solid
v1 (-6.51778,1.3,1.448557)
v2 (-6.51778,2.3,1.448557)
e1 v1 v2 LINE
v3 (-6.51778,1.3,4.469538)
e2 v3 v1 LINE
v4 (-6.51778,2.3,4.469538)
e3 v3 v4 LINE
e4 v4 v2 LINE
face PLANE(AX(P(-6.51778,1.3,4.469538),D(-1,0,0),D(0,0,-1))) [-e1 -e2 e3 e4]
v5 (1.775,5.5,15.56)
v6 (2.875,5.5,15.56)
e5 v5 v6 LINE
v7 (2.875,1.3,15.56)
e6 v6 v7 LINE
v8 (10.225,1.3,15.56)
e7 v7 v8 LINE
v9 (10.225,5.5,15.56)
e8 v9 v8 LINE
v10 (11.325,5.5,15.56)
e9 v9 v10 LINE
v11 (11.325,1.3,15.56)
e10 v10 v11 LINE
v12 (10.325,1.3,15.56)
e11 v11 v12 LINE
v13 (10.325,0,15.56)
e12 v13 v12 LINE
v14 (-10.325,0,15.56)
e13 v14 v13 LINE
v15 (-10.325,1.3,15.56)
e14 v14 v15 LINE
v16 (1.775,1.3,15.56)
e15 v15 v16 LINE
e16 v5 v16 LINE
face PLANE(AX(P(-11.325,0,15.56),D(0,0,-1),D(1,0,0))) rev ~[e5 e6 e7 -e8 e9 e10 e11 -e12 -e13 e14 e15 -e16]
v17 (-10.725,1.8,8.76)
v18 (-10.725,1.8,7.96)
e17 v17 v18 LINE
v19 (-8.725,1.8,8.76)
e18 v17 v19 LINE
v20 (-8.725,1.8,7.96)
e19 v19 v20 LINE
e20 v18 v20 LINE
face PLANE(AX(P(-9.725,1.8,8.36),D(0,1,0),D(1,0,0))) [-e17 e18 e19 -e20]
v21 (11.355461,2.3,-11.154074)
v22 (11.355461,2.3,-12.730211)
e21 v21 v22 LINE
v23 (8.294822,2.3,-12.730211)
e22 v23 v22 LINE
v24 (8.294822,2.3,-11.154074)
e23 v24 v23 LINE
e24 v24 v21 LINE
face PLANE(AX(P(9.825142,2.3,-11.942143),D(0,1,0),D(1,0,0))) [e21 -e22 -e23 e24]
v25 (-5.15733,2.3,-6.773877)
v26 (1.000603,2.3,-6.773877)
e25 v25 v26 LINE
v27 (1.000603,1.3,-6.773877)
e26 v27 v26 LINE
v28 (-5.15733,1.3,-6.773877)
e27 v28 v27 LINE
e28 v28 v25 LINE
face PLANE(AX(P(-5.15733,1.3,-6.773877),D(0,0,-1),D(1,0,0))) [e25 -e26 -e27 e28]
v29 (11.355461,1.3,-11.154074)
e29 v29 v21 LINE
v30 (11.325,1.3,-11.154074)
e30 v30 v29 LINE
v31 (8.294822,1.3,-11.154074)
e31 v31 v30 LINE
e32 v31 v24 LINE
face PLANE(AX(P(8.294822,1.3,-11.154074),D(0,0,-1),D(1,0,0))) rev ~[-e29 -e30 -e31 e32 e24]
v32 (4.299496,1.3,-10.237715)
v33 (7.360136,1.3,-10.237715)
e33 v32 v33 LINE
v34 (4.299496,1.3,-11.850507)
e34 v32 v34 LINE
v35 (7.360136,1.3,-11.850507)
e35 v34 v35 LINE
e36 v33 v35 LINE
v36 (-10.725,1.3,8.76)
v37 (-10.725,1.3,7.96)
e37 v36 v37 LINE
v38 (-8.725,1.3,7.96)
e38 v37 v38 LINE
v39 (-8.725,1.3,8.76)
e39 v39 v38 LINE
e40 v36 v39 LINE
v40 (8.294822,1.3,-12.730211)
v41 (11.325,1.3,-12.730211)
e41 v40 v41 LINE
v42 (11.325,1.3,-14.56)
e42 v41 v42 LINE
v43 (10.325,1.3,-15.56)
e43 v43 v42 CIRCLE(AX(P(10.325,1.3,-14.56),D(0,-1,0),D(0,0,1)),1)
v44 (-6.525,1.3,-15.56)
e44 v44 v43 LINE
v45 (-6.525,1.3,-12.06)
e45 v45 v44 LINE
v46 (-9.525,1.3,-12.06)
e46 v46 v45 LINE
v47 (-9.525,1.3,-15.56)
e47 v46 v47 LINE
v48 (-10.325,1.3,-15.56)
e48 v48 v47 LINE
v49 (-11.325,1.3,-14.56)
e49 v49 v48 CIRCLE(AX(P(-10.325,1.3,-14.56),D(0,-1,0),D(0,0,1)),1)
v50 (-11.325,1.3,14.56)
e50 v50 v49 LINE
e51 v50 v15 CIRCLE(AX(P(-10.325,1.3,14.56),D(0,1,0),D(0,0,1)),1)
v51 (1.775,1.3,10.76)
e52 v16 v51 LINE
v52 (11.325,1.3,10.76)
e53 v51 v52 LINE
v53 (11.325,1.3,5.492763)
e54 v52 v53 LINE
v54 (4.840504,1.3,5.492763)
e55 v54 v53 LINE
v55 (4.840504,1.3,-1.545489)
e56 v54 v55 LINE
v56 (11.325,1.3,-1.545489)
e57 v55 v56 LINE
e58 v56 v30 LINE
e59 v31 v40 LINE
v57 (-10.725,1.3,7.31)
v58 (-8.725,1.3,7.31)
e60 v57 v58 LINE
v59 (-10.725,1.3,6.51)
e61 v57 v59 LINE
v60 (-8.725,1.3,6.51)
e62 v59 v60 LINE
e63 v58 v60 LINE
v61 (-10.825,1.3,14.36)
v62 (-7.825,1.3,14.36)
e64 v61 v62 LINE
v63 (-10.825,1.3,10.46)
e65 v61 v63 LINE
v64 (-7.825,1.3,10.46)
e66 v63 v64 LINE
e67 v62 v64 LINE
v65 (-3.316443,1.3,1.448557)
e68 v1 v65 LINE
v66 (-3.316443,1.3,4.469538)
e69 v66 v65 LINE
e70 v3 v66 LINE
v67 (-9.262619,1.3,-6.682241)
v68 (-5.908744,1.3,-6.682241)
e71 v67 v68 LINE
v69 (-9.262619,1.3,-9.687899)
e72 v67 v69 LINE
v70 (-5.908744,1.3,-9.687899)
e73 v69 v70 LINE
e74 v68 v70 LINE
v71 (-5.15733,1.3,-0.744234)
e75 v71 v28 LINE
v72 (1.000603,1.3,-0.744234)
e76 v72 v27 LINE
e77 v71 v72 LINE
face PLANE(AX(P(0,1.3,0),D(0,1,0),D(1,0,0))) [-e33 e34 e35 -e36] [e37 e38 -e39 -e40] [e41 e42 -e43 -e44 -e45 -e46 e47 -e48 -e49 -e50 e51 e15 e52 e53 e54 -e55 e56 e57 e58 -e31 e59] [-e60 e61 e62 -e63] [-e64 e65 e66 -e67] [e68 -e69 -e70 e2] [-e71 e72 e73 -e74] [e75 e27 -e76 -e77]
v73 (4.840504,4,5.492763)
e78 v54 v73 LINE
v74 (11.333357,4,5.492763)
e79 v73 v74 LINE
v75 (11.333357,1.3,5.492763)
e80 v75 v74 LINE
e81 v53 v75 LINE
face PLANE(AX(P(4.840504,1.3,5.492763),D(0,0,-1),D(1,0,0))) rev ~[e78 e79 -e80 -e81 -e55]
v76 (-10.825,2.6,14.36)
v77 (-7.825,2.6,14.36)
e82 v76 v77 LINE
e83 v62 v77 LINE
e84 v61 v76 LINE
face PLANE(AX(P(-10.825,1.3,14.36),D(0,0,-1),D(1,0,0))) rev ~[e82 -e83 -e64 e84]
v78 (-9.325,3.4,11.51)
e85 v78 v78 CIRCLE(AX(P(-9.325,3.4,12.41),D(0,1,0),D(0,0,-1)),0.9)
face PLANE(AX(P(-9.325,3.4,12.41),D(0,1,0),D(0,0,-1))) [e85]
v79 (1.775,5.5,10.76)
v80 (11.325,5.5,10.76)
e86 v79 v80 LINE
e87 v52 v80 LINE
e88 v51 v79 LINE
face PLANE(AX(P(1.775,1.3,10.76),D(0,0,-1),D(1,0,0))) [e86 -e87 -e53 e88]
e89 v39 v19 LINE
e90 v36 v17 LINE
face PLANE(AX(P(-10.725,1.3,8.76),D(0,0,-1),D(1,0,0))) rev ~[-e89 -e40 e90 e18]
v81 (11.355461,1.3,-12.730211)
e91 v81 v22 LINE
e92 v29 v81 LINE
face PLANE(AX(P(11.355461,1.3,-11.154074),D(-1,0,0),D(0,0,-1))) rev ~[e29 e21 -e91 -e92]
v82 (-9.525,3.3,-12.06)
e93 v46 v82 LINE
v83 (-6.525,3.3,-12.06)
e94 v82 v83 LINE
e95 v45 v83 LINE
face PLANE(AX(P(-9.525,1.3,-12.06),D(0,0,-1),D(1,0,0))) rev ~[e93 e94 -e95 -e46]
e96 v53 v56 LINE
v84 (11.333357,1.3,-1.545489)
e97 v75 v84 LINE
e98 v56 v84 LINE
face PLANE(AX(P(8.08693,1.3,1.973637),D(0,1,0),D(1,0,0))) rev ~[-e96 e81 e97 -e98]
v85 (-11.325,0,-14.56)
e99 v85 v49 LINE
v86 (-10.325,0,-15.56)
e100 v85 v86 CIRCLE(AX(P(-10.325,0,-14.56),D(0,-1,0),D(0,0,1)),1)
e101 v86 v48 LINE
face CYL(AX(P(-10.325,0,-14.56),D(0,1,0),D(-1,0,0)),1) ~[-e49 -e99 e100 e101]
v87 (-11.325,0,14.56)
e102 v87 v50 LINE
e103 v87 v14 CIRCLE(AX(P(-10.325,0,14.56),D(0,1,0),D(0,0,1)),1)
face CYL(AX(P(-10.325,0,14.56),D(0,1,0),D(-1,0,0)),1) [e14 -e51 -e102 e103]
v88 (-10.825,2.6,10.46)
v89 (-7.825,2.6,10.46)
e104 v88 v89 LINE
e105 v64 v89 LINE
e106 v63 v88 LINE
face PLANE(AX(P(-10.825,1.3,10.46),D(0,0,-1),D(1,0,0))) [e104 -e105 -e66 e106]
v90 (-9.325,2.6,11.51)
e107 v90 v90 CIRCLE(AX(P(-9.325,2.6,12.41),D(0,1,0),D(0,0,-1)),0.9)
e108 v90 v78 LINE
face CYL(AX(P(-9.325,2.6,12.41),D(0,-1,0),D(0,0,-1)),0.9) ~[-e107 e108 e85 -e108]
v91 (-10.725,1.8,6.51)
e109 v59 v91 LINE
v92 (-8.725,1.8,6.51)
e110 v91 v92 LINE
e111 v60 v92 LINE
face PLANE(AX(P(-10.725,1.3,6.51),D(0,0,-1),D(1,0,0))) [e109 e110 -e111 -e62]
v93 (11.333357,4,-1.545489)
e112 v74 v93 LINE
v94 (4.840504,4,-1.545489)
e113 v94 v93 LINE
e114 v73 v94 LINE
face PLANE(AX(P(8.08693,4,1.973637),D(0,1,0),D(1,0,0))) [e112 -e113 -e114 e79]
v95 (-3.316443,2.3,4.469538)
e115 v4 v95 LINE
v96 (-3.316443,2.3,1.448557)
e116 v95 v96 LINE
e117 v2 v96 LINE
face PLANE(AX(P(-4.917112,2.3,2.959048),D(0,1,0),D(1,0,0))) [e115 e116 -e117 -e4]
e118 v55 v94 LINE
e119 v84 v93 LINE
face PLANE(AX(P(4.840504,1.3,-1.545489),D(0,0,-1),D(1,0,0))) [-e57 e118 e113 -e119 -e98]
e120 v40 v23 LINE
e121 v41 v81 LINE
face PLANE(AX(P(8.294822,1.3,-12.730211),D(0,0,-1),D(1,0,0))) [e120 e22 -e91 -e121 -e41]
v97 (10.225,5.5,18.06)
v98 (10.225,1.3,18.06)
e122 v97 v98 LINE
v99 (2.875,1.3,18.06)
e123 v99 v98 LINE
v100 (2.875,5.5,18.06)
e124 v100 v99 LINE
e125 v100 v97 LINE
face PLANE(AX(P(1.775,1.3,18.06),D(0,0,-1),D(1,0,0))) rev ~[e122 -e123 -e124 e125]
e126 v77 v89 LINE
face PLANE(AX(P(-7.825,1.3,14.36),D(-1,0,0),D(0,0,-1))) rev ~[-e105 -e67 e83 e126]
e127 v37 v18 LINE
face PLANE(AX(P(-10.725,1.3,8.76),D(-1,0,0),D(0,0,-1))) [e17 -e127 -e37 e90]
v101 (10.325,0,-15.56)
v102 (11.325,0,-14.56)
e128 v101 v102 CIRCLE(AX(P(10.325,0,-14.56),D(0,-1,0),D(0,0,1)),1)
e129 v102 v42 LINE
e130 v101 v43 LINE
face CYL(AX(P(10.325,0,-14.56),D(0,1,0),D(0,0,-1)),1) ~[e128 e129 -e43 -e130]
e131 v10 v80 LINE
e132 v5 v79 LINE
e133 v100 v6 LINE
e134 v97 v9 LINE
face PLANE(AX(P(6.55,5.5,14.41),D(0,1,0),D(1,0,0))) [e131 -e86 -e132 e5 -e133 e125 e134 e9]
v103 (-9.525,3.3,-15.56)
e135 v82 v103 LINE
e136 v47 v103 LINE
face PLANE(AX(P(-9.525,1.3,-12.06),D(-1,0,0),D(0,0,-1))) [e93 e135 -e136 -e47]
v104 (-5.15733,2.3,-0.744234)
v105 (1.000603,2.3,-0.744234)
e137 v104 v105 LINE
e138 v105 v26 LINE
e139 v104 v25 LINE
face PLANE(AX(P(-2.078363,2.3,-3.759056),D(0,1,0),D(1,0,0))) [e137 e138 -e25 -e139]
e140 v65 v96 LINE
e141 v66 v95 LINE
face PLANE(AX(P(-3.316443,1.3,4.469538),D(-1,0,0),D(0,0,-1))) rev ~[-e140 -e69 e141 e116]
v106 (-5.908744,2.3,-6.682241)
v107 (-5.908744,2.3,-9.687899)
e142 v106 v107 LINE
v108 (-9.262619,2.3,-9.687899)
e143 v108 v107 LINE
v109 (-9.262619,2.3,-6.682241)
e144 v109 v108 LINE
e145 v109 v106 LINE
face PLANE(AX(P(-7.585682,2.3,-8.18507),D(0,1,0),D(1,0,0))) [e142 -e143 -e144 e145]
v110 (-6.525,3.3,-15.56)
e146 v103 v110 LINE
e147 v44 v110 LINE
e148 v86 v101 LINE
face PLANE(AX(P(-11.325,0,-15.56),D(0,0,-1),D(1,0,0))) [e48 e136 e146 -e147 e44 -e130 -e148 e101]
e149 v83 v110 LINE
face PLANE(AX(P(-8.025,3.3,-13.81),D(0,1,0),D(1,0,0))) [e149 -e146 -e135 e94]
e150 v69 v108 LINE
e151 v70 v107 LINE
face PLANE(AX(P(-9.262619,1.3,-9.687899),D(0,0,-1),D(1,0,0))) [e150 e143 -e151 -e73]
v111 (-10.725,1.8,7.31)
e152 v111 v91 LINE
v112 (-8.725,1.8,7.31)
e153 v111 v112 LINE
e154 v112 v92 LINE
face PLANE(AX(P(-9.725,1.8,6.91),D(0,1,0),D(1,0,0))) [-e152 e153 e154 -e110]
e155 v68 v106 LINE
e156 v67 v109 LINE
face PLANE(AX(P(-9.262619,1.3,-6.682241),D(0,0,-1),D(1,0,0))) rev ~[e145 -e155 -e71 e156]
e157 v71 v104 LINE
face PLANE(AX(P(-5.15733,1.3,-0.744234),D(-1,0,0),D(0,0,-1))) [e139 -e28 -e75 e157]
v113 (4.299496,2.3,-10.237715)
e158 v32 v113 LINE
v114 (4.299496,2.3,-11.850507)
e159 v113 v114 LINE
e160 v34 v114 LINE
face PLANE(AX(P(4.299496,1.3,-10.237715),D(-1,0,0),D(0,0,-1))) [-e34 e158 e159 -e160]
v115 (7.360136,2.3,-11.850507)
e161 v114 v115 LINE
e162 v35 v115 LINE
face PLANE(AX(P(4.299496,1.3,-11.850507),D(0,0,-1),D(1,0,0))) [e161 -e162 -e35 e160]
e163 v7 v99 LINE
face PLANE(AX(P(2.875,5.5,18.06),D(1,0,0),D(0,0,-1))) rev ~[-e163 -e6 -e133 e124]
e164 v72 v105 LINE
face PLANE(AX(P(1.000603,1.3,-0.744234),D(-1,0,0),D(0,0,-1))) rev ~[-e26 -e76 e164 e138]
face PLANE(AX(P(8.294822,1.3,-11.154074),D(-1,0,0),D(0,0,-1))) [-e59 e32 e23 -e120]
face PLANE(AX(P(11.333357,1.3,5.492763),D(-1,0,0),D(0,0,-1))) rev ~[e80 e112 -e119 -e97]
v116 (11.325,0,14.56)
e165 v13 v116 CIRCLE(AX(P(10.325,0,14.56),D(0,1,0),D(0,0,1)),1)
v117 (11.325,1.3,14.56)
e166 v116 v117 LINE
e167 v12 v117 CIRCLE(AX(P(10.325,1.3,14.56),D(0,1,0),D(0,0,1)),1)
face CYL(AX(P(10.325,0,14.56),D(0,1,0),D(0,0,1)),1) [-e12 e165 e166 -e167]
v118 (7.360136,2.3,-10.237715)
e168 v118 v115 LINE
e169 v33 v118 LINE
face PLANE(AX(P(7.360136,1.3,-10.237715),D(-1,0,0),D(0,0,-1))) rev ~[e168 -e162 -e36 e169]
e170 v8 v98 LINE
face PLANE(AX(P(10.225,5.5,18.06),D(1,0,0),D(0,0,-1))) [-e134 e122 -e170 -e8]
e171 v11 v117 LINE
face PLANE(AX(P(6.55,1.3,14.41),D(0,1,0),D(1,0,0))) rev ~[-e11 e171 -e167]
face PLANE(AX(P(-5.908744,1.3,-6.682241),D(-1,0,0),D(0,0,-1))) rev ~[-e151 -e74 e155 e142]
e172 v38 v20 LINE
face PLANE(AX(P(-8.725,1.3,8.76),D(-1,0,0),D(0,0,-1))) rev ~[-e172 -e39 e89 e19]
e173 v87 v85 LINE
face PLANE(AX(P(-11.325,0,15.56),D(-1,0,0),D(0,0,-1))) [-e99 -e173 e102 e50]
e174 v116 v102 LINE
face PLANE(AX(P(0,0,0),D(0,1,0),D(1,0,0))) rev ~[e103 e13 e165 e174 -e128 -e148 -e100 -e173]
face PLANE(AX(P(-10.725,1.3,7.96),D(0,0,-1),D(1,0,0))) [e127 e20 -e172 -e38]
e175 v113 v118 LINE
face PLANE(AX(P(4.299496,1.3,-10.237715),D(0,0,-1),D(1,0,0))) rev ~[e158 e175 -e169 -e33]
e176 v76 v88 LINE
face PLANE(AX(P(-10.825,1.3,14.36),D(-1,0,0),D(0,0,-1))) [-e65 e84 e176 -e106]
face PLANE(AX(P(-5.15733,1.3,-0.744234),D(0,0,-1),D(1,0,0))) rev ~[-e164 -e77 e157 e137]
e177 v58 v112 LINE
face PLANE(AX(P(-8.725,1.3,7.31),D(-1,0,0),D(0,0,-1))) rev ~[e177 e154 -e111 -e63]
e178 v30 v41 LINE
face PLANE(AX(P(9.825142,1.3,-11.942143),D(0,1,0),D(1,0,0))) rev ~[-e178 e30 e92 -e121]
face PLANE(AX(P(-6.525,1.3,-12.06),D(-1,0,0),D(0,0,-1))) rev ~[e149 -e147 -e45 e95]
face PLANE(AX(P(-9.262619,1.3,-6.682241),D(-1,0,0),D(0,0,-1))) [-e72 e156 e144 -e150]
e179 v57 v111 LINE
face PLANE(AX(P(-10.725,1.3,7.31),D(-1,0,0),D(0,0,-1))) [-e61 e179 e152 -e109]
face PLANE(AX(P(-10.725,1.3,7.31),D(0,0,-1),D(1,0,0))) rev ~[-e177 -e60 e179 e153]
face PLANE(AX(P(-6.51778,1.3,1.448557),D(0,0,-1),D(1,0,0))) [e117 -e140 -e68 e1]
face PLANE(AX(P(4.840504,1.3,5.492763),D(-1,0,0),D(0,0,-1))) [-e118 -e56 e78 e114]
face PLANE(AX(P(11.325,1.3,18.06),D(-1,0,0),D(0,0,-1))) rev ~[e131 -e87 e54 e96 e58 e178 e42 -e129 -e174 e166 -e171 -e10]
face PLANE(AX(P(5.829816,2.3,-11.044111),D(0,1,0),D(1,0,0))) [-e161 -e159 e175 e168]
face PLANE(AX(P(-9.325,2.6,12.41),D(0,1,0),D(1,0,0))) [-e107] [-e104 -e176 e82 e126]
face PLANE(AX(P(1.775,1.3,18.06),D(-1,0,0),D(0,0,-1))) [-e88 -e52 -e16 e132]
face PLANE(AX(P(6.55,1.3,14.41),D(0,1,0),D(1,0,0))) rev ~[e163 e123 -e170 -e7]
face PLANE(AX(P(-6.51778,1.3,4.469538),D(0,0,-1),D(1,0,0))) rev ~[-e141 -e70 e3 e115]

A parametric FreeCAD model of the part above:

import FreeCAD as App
import Part
import Sketcher


def edges_at(feature, points):
    """Names of the edges that pass closest to the given points."""
    edges = feature.Shape.Edges
    near = lambda p: min(range(len(edges)), key=lambda i: edges[i].distToShape(Part.Vertex(*p))[0])
    return sorted({f"Edge{near(p) + 1}" for p in points})

doc = App.newDocument("Part")
body = doc.addObject("PartDesign::Body", "Body")

sketch1 = doc.addObject("Sketcher::SketchObject", "Sketch")
body.addObject(sketch1)
sketch1.AttachmentSupport = (doc.XZ_Plane, [""])
sketch1.MapMode = "FlatFace"
sketch1.addGeometry(Part.LineSegment(App.Vector(-11, -16, 0), App.Vector(-11, 16, 0)), False)
sketch1.addGeometry(Part.LineSegment(App.Vector(-11, 16, 0), App.Vector(11, 16, 0)), False)
sketch1.addGeometry(Part.LineSegment(App.Vector(11, 16, 0), App.Vector(11, -16, 0)), False)
sketch1.addGeometry(Part.LineSegment(App.Vector(11, -16, 0), App.Vector(-11, -16, 0)), False)
sketch1.addConstraint(Sketcher.Constraint("Coincident", 0, 2, 1, 1))
sketch1.addConstraint(Sketcher.Constraint("Coincident", 1, 2, 2, 1))
sketch1.addConstraint(Sketcher.Constraint("Coincident", 2, 2, 3, 1))
sketch1.addConstraint(Sketcher.Constraint("Coincident", 3, 2, 0, 1))
sketch1.addConstraint(Sketcher.Constraint("Vertical", 0))
sketch1.addConstraint(Sketcher.Constraint("Horizontal", 1))
sketch1.addConstraint(Sketcher.Constraint("Vertical", 2))
sketch1.addConstraint(Sketcher.Constraint("Horizontal", 3))
sketch1.addConstraint(Sketcher.Constraint("Symmetric", 0, 2, 2, 2, -1, 1))
sketch1.addConstraint(Sketcher.Constraint("DistanceX", 1, 1, 1, 2, 22.65))
sketch1.addConstraint(Sketcher.Constraint("DistanceY", 0, 1, 0, 2, 31.12))
pad1 = doc.addObject("PartDesign::Pad", "Pad")
body.addObject(pad1)
pad1.Profile = sketch1
pad1.Length = 1.3
pad1.Reversed = True

sketch2 = doc.addObject("Sketcher::SketchObject", "Sketch001")
body.addObject(sketch2)
sketch2.AttachmentSupport = (doc.XZ_Plane, [""])
sketch2.MapMode = "FlatFace"
sketch2.AttachmentOffset = App.Placement(App.Vector(0, 0, -1.3), App.Rotation())
sketch2.addGeometry(Part.LineSegment(App.Vector(2, 11, 0), App.Vector(2, 18, 0)), False)
sketch2.addGeometry(Part.LineSegment(App.Vector(2, 18, 0), App.Vector(11, 18, 0)), False)
sketch2.addGeometry(Part.LineSegment(App.Vector(11, 18, 0), App.Vector(11, 11, 0)), False)
sketch2.addGeometry(Part.LineSegment(App.Vector(11, 11, 0), App.Vector(2, 11, 0)), False)
sketch2.addConstraint(Sketcher.Constraint("Coincident", 0, 2, 1, 1))
sketch2.addConstraint(Sketcher.Constraint("Coincident", 1, 2, 2, 1))
sketch2.addConstraint(Sketcher.Constraint("Coincident", 2, 2, 3, 1))
sketch2.addConstraint(Sketcher.Constraint("Coincident", 3, 2, 0, 1))
sketch2.addConstraint(Sketcher.Constraint("Vertical", 0))
sketch2.addConstraint(Sketcher.Constraint("Horizontal", 1))
sketch2.addConstraint(Sketcher.Constraint("Vertical", 2))
sketch2.addConstraint(Sketcher.Constraint("Horizontal", 3))
sketch2.addConstraint(Sketcher.Constraint("DistanceY", 0, 1, 0, 2, 7.3))
sketch2.addConstraint(Sketcher.Constraint("DistanceX", 1, 1, 1, 2, 9.55))
sketch2.addConstraint(Sketcher.Constraint("DistanceY", -1, 1, 0, 2, 18.06))
sketch2.addConstraint(Sketcher.Constraint("DistanceX", -1, 1, 0, 2, 1.775))
pad2 = doc.addObject("PartDesign::Pad", "Pad001")
body.addObject(pad2)
pad2.Profile = sketch2
pad2.Length = 4.2
pad2.Reversed = True

sketch3 = doc.addObject("Sketcher::SketchObject", "Sketch002")
body.addObject(sketch3)
sketch3.AttachmentSupport = (doc.XZ_Plane, [""])
sketch3.MapMode = "FlatFace"
sketch3.AttachmentOffset = App.Placement(App.Vector(0, 0, -1.3), App.Rotation())
sketch3.addGeometry(Part.LineSegment(App.Vector(-9.5, -15.6, 0), App.Vector(-9.5, -12.1, 0)), False)
sketch3.addGeometry(Part.LineSegment(App.Vector(-9.5, -12.1, 0), App.Vector(-6.5, -12.1, 0)), False)
sketch3.addGeometry(Part.LineSegment(App.Vector(-6.5, -12.1, 0), App.Vector(-6.5, -15.6, 0)), False)
sketch3.addGeometry(Part.LineSegment(App.Vector(-6.5, -15.6, 0), App.Vector(-9.5, -15.6, 0)), False)
sketch3.addConstraint(Sketcher.Constraint("Coincident", 0, 2, 1, 1))
sketch3.addConstraint(Sketcher.Constraint("Coincident", 1, 2, 2, 1))
sketch3.addConstraint(Sketcher.Constraint("Coincident", 2, 2, 3, 1))
sketch3.addConstraint(Sketcher.Constraint("Coincident", 3, 2, 0, 1))
sketch3.addConstraint(Sketcher.Constraint("Vertical", 0))
sketch3.addConstraint(Sketcher.Constraint("Horizontal", 1))
sketch3.addConstraint(Sketcher.Constraint("Vertical", 2))
sketch3.addConstraint(Sketcher.Constraint("Horizontal", 3))
sketch3.addConstraint(Sketcher.Constraint("DistanceX", 1, 1, 1, 2, 3.0))
sketch3.addConstraint(Sketcher.Constraint("DistanceY", 0, 1, 0, 2, 3.5))
sketch3.addConstraint(Sketcher.Constraint("DistanceY", 0, 2, -1, 1, 12.06))
sketch3.addConstraint(Sketcher.Constraint("DistanceX", 0, 2, -1, 1, 9.525))
pad3 = doc.addObject("PartDesign::Pad", "Pad002")
body.addObject(pad3)
pad3.Profile = sketch3
pad3.Length = 2
pad3.Reversed = True

sketch4 = doc.addObject("Sketcher::SketchObject", "Sketch003")
body.addObject(sketch4)
sketch4.AttachmentSupport = (doc.XZ_Plane, [""])
sketch4.MapMode = "FlatFace"
sketch4.AttachmentOffset = App.Placement(App.Vector(0, 0, -1.3), App.Rotation())
sketch4.addGeometry(Part.LineSegment(App.Vector(-10.8, 10.5, 0), App.Vector(-10.8, 14.4, 0)), False)
sketch4.addGeometry(Part.LineSegment(App.Vector(-10.8, 14.4, 0), App.Vector(-7.8, 14.4, 0)), False)
sketch4.addGeometry(Part.LineSegment(App.Vector(-7.8, 14.4, 0), App.Vector(-7.8, 10.5, 0)), False)
sketch4.addGeometry(Part.LineSegment(App.Vector(-7.8, 10.5, 0), App.Vector(-10.8, 10.5, 0)), False)
sketch4.addConstraint(Sketcher.Constraint("Coincident", 0, 2, 1, 1))
sketch4.addConstraint(Sketcher.Constraint("Coincident", 1, 2, 2, 1))
sketch4.addConstraint(Sketcher.Constraint("Coincident", 2, 2, 3, 1))
sketch4.addConstraint(Sketcher.Constraint("Coincident", 3, 2, 0, 1))
sketch4.addConstraint(Sketcher.Constraint("Vertical", 0))
sketch4.addConstraint(Sketcher.Constraint("Horizontal", 1))
sketch4.addConstraint(Sketcher.Constraint("Vertical", 2))
sketch4.addConstraint(Sketcher.Constraint("Horizontal", 3))
sketch4.addConstraint(Sketcher.Constraint("DistanceX", 1, 1, 1, 2, 3.0))
sketch4.addConstraint(Sketcher.Constraint("DistanceY", 0, 1, 0, 2, 3.9))
sketch4.addConstraint(Sketcher.Constraint("DistanceY", -1, 1, 0, 2, 14.36))
sketch4.addConstraint(Sketcher.Constraint("DistanceX", 0, 2, -1, 1, 10.825))
pad4 = doc.addObject("PartDesign::Pad", "Pad003")
body.addObject(pad4)
pad4.Profile = sketch4
pad4.Length = 1.3
pad4.Reversed = True

sketch5 = doc.addObject("Sketcher::SketchObject", "Sketch004")
body.addObject(sketch5)
sketch5.AttachmentSupport = (doc.XZ_Plane, [""])
sketch5.MapMode = "FlatFace"
sketch5.AttachmentOffset = App.Placement(App.Vector(0, 0, -2.6), App.Rotation())
sketch5.addGeometry(Part.Circle(App.Vector(-9.3, 12.4, 0), App.Vector(0, 0, 1), 0.9), False)
sketch5.addConstraint(Sketcher.Constraint("Diameter", 0, 1.8))
sketch5.addConstraint(Sketcher.Constraint("DistanceY", -1, 1, 0, 3, 12.41))
sketch5.addConstraint(Sketcher.Constraint("DistanceX", 0, 3, -1, 1, 9.325))
pad5 = doc.addObject("PartDesign::Pad", "Pad004")
body.addObject(pad5)
pad5.Profile = sketch5
pad5.Length = 0.8
pad5.Reversed = True

sketch6 = doc.addObject("Sketcher::SketchObject", "Sketch005")
body.addObject(sketch6)
sketch6.AttachmentSupport = (doc.XZ_Plane, [""])
sketch6.MapMode = "FlatFace"
sketch6.AttachmentOffset = App.Placement(App.Vector(0, 0, -1.3), App.Rotation())
sketch6.addGeometry(Part.LineSegment(App.Vector(-5.2, -6.8, 0), App.Vector(-5.2, -0.7, 0)), False)
sketch6.addGeometry(Part.LineSegment(App.Vector(-5.2, -0.7, 0), App.Vector(1, -0.7, 0)), False)
sketch6.addGeometry(Part.LineSegment(App.Vector(1, -0.7, 0), App.Vector(1, -6.8, 0)), False)
sketch6.addGeometry(Part.LineSegment(App.Vector(1, -6.8, 0), App.Vector(-5.2, -6.8, 0)), False)
sketch6.addGeometry(Part.LineSegment(App.Vector(-9.3, -9.7, 0), App.Vector(-9.3, -6.7, 0)), False)
sketch6.addGeometry(Part.LineSegment(App.Vector(-9.3, -6.7, 0), App.Vector(-5.9, -6.7, 0)), False)
sketch6.addGeometry(Part.LineSegment(App.Vector(-5.9, -6.7, 0), App.Vector(-5.9, -9.7, 0)), False)
sketch6.addGeometry(Part.LineSegment(App.Vector(-5.9, -9.7, 0), App.Vector(-9.3, -9.7, 0)), False)
sketch6.addGeometry(Part.LineSegment(App.Vector(8.3, -12.7, 0), App.Vector(8.3, -11.2, 0)), False)
sketch6.addGeometry(Part.LineSegment(App.Vector(8.3, -11.2, 0), App.Vector(11.4, -11.2, 0)), False)
sketch6.addGeometry(Part.LineSegment(App.Vector(11.4, -11.2, 0), App.Vector(11.4, -12.7, 0)), False)
sketch6.addGeometry(Part.LineSegment(App.Vector(11.4, -12.7, 0), App.Vector(8.3, -12.7, 0)), False)
sketch6.addGeometry(Part.LineSegment(App.Vector(4.3, -11.9, 0), App.Vector(4.3, -10.2, 0)), False)
sketch6.addGeometry(Part.LineSegment(App.Vector(4.3, -10.2, 0), App.Vector(7.4, -10.2, 0)), False)
sketch6.addGeometry(Part.LineSegment(App.Vector(7.4, -10.2, 0), App.Vector(7.4, -11.9, 0)), False)
sketch6.addGeometry(Part.LineSegment(App.Vector(7.4, -11.9, 0), App.Vector(4.3, -11.9, 0)), False)
sketch6.addGeometry(Part.LineSegment(App.Vector(-6.5, 1.4, 0), App.Vector(-6.5, 4.5, 0)), False)
sketch6.addGeometry(Part.LineSegment(App.Vector(-6.5, 4.5, 0), App.Vector(-3.3, 4.5, 0)), False)
sketch6.addGeometry(Part.LineSegment(App.Vector(-3.3, 4.5, 0), App.Vector(-3.3, 1.4, 0)), False)
sketch6.addGeometry(Part.LineSegment(App.Vector(-3.3, 1.4, 0), App.Vector(-6.5, 1.4, 0)), False)
sketch6.addConstraint(Sketcher.Constraint("Coincident", 0, 2, 1, 1))
sketch6.addConstraint(Sketcher.Constraint("Coincident", 1, 2, 2, 1))
sketch6.addConstraint(Sketcher.Constraint("Coincident", 2, 2, 3, 1))
sketch6.addConstraint(Sketcher.Constraint("Coincident", 3, 2, 0, 1))
sketch6.addConstraint(Sketcher.Constraint("Coincident", 4, 2, 5, 1))
sketch6.addConstraint(Sketcher.Constraint("Coincident", 5, 2, 6, 1))
sketch6.addConstraint(Sketcher.Constraint("Coincident", 6, 2, 7, 1))
sketch6.addConstraint(Sketcher.Constraint("Coincident", 7, 2, 4, 1))
sketch6.addConstraint(Sketcher.Constraint("Coincident", 8, 2, 9, 1))
sketch6.addConstraint(Sketcher.Constraint("Coincident", 9, 2, 10, 1))
sketch6.addConstraint(Sketcher.Constraint("Coincident", 10, 2, 11, 1))
sketch6.addConstraint(Sketcher.Constraint("Coincident", 11, 2, 8, 1))
sketch6.addConstraint(Sketcher.Constraint("Coincident", 12, 2, 13, 1))
sketch6.addConstraint(Sketcher.Constraint("Coincident", 13, 2, 14, 1))
sketch6.addConstraint(Sketcher.Constraint("Coincident", 14, 2, 15, 1))
sketch6.addConstraint(Sketcher.Constraint("Coincident", 15, 2, 12, 1))
sketch6.addConstraint(Sketcher.Constraint("Coincident", 16, 2, 17, 1))
sketch6.addConstraint(Sketcher.Constraint("Coincident", 17, 2, 18, 1))
sketch6.addConstraint(Sketcher.Constraint("Coincident", 18, 2, 19, 1))
sketch6.addConstraint(Sketcher.Constraint("Coincident", 19, 2, 16, 1))
sketch6.addConstraint(Sketcher.Constraint("Vertical", 0))
sketch6.addConstraint(Sketcher.Constraint("Horizontal", 1))
sketch6.addConstraint(Sketcher.Constraint("Vertical", 2))
sketch6.addConstraint(Sketcher.Constraint("Horizontal", 3))
sketch6.addConstraint(Sketcher.Constraint("Vertical", 4))
sketch6.addConstraint(Sketcher.Constraint("Horizontal", 5))
sketch6.addConstraint(Sketcher.Constraint("Vertical", 6))
sketch6.addConstraint(Sketcher.Constraint("Horizontal", 7))
sketch6.addConstraint(Sketcher.Constraint("Vertical", 8))
sketch6.addConstraint(Sketcher.Constraint("Horizontal", 9))
sketch6.addConstraint(Sketcher.Constraint("Vertical", 10))
sketch6.addConstraint(Sketcher.Constraint("Horizontal", 11))
sketch6.addConstraint(Sketcher.Constraint("Vertical", 12))
sketch6.addConstraint(Sketcher.Constraint("Horizontal", 13))
sketch6.addConstraint(Sketcher.Constraint("Vertical", 14))
sketch6.addConstraint(Sketcher.Constraint("Horizontal", 15))
sketch6.addConstraint(Sketcher.Constraint("Vertical", 16))
sketch6.addConstraint(Sketcher.Constraint("Horizontal", 17))
sketch6.addConstraint(Sketcher.Constraint("Vertical", 18))
sketch6.addConstraint(Sketcher.Constraint("Horizontal", 19))
sketch6.addConstraint(Sketcher.Constraint("Equal", 11, 13))
sketch6.addConstraint(Sketcher.Constraint("DistanceX", 9, 1, 9, 2, 3.060639))
sketch6.addConstraint(Sketcher.Constraint("DistanceY", 16, 1, 16, 2, 3.02098))
sketch6.addConstraint(Sketcher.Constraint("DistanceY", 6, 2, -1, 1, 9.687899))
sketch6.addConstraint(Sketcher.Constraint("DistanceX", 5, 2, 17, 2, 2.592301))
sketch6.addConstraint(Sketcher.Constraint("DistanceX", 1, 1, 1, 2, 6.157933))
sketch6.addConstraint(Sketcher.Constraint("DistanceX", 5, 1, 5, 2, 3.353874))
sketch6.addConstraint(Sketcher.Constraint("DistanceX", 17, 1, 17, 2, 3.201337))
sketch6.addConstraint(Sketcher.Constraint("DistanceY", 0, 1, 0, 2, 6.029643))
sketch6.addConstraint(Sketcher.Constraint("DistanceY", 4, 1, 4, 2, 3.005658))
sketch6.addConstraint(Sketcher.Constraint("DistanceY", 8, 1, 8, 2, 1.576138))
sketch6.addConstraint(Sketcher.Constraint("DistanceY", 12, 1, 12, 2, 1.612792))
sketch6.addConstraint(Sketcher.Constraint("DistanceX", 0, 2, -1, 1, 5.15733))
sketch6.addConstraint(Sketcher.Constraint("DistanceX", 4, 2, -1, 1, 9.262619))
sketch6.addConstraint(Sketcher.Constraint("DistanceX", -1, 1, 8, 2, 8.294822))
sketch6.addConstraint(Sketcher.Constraint("DistanceY", 10, 2, -1, 1, 12.730211))
sketch6.addConstraint(Sketcher.Constraint("DistanceY", 6, 2, 3, 2, 2.914022))
sketch6.addConstraint(Sketcher.Constraint("DistanceY", 8, 2, 12, 2, 0.916359))
sketch6.addConstraint(Sketcher.Constraint("DistanceY", 0, 2, 16, 2, 5.213772))
sketch6.addConstraint(Sketcher.Constraint("DistanceX", -1, 1, 12, 2, 4.299496))
pad6 = doc.addObject("PartDesign::Pad", "Pad005")
body.addObject(pad6)
pad6.Profile = sketch6
pad6.Length = 1
pad6.Reversed = True

sketch7 = doc.addObject("Sketcher::SketchObject", "Sketch006")
body.addObject(sketch7)
sketch7.AttachmentSupport = (doc.XZ_Plane, [""])
sketch7.MapMode = "FlatFace"
sketch7.AttachmentOffset = App.Placement(App.Vector(0, 0, -1.3), App.Rotation())
sketch7.addGeometry(Part.LineSegment(App.Vector(5, -2, 0), App.Vector(5, 5, 0)), False)
sketch7.addGeometry(Part.LineSegment(App.Vector(5, 5, 0), App.Vector(11, 5, 0)), False)
sketch7.addGeometry(Part.LineSegment(App.Vector(11, 5, 0), App.Vector(11, -2, 0)), False)
sketch7.addGeometry(Part.LineSegment(App.Vector(11, -2, 0), App.Vector(5, -2, 0)), False)
sketch7.addConstraint(Sketcher.Constraint("Coincident", 0, 2, 1, 1))
sketch7.addConstraint(Sketcher.Constraint("Coincident", 1, 2, 2, 1))
sketch7.addConstraint(Sketcher.Constraint("Coincident", 2, 2, 3, 1))
sketch7.addConstraint(Sketcher.Constraint("Coincident", 3, 2, 0, 1))
sketch7.addConstraint(Sketcher.Constraint("Vertical", 0))
sketch7.addConstraint(Sketcher.Constraint("Horizontal", 1))
sketch7.addConstraint(Sketcher.Constraint("Vertical", 2))
sketch7.addConstraint(Sketcher.Constraint("Horizontal", 3))
sketch7.addConstraint(Sketcher.Constraint("DistanceX", 1, 1, 1, 2, 6.492853))
sketch7.addConstraint(Sketcher.Constraint("DistanceY", 0, 1, 0, 2, 7.038252))
sketch7.addConstraint(Sketcher.Constraint("DistanceY", 2, 2, -1, 1, 1.545489))
sketch7.addConstraint(Sketcher.Constraint("DistanceX", -1, 1, 0, 2, 4.840504))
pad7 = doc.addObject("PartDesign::Pad", "Pad006")
body.addObject(pad7)
pad7.Profile = sketch7
pad7.Length = 2.7
pad7.Reversed = True

sketch8 = doc.addObject("Sketcher::SketchObject", "Sketch007")
body.addObject(sketch8)
sketch8.AttachmentSupport = (doc.XZ_Plane, [""])
sketch8.MapMode = "FlatFace"
sketch8.AttachmentOffset = App.Placement(App.Vector(0, 0, -1.3), App.Rotation())
sketch8.addGeometry(Part.LineSegment(App.Vector(-10.7, 8, 0), App.Vector(-10.7, 8.8, 0)), False)
sketch8.addGeometry(Part.LineSegment(App.Vector(-10.7, 8.8, 0), App.Vector(-8.7, 8.8, 0)), False)
sketch8.addGeometry(Part.LineSegment(App.Vector(-8.7, 8.8, 0), App.Vector(-8.7, 8, 0)), False)
sketch8.addGeometry(Part.LineSegment(App.Vector(-8.7, 8, 0), App.Vector(-10.7, 8, 0)), False)
sketch8.addGeometry(Part.LineSegment(App.Vector(-10.7, 6.5, 0), App.Vector(-10.7, 7.3, 0)), False)
sketch8.addGeometry(Part.LineSegment(App.Vector(-10.7, 7.3, 0), App.Vector(-8.7, 7.3, 0)), False)
sketch8.addGeometry(Part.LineSegment(App.Vector(-8.7, 7.3, 0), App.Vector(-8.7, 6.5, 0)), False)
sketch8.addGeometry(Part.LineSegment(App.Vector(-8.7, 6.5, 0), App.Vector(-10.7, 6.5, 0)), False)
sketch8.addConstraint(Sketcher.Constraint("Coincident", 0, 2, 1, 1))
sketch8.addConstraint(Sketcher.Constraint("Coincident", 1, 2, 2, 1))
sketch8.addConstraint(Sketcher.Constraint("Coincident", 2, 2, 3, 1))
sketch8.addConstraint(Sketcher.Constraint("Coincident", 3, 2, 0, 1))
sketch8.addConstraint(Sketcher.Constraint("Coincident", 4, 2, 5, 1))
sketch8.addConstraint(Sketcher.Constraint("Coincident", 5, 2, 6, 1))
sketch8.addConstraint(Sketcher.Constraint("Coincident", 6, 2, 7, 1))
sketch8.addConstraint(Sketcher.Constraint("Coincident", 7, 2, 4, 1))
sketch8.addConstraint(Sketcher.Constraint("Vertical", 0))
sketch8.addConstraint(Sketcher.Constraint("Horizontal", 1))
sketch8.addConstraint(Sketcher.Constraint("Vertical", 2))
sketch8.addConstraint(Sketcher.Constraint("Horizontal", 3))
sketch8.addConstraint(Sketcher.Constraint("Vertical", 4))
sketch8.addConstraint(Sketcher.Constraint("Horizontal", 5))
sketch8.addConstraint(Sketcher.Constraint("Vertical", 6))
sketch8.addConstraint(Sketcher.Constraint("Horizontal", 7))
sketch8.addConstraint(Sketcher.Constraint("Vertical", 3, 2, 4, 2))
sketch8.addConstraint(Sketcher.Constraint("Vertical", 2, 2, 5, 2))
sketch8.addConstraint(Sketcher.Constraint("Equal", 2, 4))
sketch8.addConstraint(Sketcher.Constraint("DistanceX", 1, 1, 1, 2, 2.0))
sketch8.addConstraint(Sketcher.Constraint("DistanceY", 0, 1, 0, 2, 0.8))
sketch8.addConstraint(Sketcher.Constraint("DistanceY", -1, 1, 0, 2, 8.76))
sketch8.addConstraint(Sketcher.Constraint("DistanceY", -1, 1, 4, 2, 7.31))
sketch8.addConstraint(Sketcher.Constraint("DistanceX", 0, 2, -1, 1, 10.725))
pad8 = doc.addObject("PartDesign::Pad", "Pad007")
body.addObject(pad8)
pad8.Profile = sketch8
pad8.Length = 0.5
pad8.Reversed = True
doc.recompute()

fillet = doc.addObject("PartDesign::Fillet", "Fillet")
body.addObject(fillet)
fillet.Base = (pad8, edges_at(pad8, [
    (11.325, 0.65, 15.56),
    (-11.325, 0.65, 15.56),
    (-11.325, 0.65, -15.56),
    (11.325, 0.65, -15.56),
]))
fillet.Radius = 1

sketch9 = doc.addObject("Sketcher::SketchObject", "Sketch008")
body.addObject(sketch9)
sketch9.AttachmentSupport = (doc.XZ_Plane, [""])
sketch9.MapMode = "FlatFace"
sketch9.AttachmentOffset = App.Placement(App.Vector(0, 0, -5.5), App.Rotation())
sketch9.addGeometry(Part.LineSegment(App.Vector(10.2, 15.6, 0), App.Vector(10.2, 18.1, 0)), False)
sketch9.addGeometry(Part.LineSegment(App.Vector(10.2, 18.1, 0), App.Vector(11.3, 18.1, 0)), False)
sketch9.addGeometry(Part.LineSegment(App.Vector(11.3, 18.1, 0), App.Vector(11.3, 15.6, 0)), False)
sketch9.addGeometry(Part.LineSegment(App.Vector(11.3, 15.6, 0), App.Vector(10.2, 15.6, 0)), False)
sketch9.addConstraint(Sketcher.Constraint("Coincident", 0, 2, 1, 1))
sketch9.addConstraint(Sketcher.Constraint("Coincident", 1, 2, 2, 1))
sketch9.addConstraint(Sketcher.Constraint("Coincident", 2, 2, 3, 1))
sketch9.addConstraint(Sketcher.Constraint("Coincident", 3, 2, 0, 1))
sketch9.addConstraint(Sketcher.Constraint("Vertical", 0))
sketch9.addConstraint(Sketcher.Constraint("Horizontal", 1))
sketch9.addConstraint(Sketcher.Constraint("Vertical", 2))
sketch9.addConstraint(Sketcher.Constraint("Horizontal", 3))
sketch9.addConstraint(Sketcher.Constraint("DistanceX", 1, 1, 1, 2, 1.1))
sketch9.addConstraint(Sketcher.Constraint("DistanceY", 0, 1, 0, 2, 2.5))
sketch9.addConstraint(Sketcher.Constraint("DistanceY", -1, 1, 0, 2, 18.06))
sketch9.addConstraint(Sketcher.Constraint("DistanceX", -1, 1, 0, 2, 10.225))
pocket1 = doc.addObject("PartDesign::Pocket", "Pocket")
body.addObject(pocket1)
pocket1.Profile = sketch9
pocket1.Type = "UpToFirst"
pocket1.Reversed = True

sketch10 = doc.addObject("Sketcher::SketchObject", "Sketch009")
body.addObject(sketch10)
sketch10.AttachmentSupport = (doc.XZ_Plane, [""])
sketch10.MapMode = "FlatFace"
sketch10.AttachmentOffset = App.Placement(App.Vector(0, 0, -5.5), App.Rotation())
sketch10.addGeometry(Part.LineSegment(App.Vector(1.8, 15.6, 0), App.Vector(1.8, 18.1, 0)), False)
sketch10.addGeometry(Part.LineSegment(App.Vector(1.8, 18.1, 0), App.Vector(2.9, 18.1, 0)), False)
sketch10.addGeometry(Part.LineSegment(App.Vector(2.9, 18.1, 0), App.Vector(2.9, 15.6, 0)), False)
sketch10.addGeometry(Part.LineSegment(App.Vector(2.9, 15.6, 0), App.Vector(1.8, 15.6, 0)), False)
sketch10.addConstraint(Sketcher.Constraint("Coincident", 0, 2, 1, 1))
sketch10.addConstraint(Sketcher.Constraint("Coincident", 1, 2, 2, 1))
sketch10.addConstraint(Sketcher.Constraint("Coincident", 2, 2, 3, 1))
sketch10.addConstraint(Sketcher.Constraint("Coincident", 3, 2, 0, 1))
sketch10.addConstraint(Sketcher.Constraint("Vertical", 0))
sketch10.addConstraint(Sketcher.Constraint("Horizontal", 1))
sketch10.addConstraint(Sketcher.Constraint("Vertical", 2))
sketch10.addConstraint(Sketcher.Constraint("Horizontal", 3))
sketch10.addConstraint(Sketcher.Constraint("DistanceX", 1, 1, 1, 2, 1.1))
sketch10.addConstraint(Sketcher.Constraint("DistanceY", 0, 1, 0, 2, 2.5))
sketch10.addConstraint(Sketcher.Constraint("DistanceY", -1, 1, 0, 2, 18.06))
sketch10.addConstraint(Sketcher.Constraint("DistanceX", -1, 1, 0, 2, 1.775))
pocket2 = doc.addObject("PartDesign::Pocket", "Pocket001")
body.addObject(pocket2)
pocket2.Profile = sketch10
pocket2.Type = "UpToFirst"
pocket2.Reversed = True

doc.recompute()
